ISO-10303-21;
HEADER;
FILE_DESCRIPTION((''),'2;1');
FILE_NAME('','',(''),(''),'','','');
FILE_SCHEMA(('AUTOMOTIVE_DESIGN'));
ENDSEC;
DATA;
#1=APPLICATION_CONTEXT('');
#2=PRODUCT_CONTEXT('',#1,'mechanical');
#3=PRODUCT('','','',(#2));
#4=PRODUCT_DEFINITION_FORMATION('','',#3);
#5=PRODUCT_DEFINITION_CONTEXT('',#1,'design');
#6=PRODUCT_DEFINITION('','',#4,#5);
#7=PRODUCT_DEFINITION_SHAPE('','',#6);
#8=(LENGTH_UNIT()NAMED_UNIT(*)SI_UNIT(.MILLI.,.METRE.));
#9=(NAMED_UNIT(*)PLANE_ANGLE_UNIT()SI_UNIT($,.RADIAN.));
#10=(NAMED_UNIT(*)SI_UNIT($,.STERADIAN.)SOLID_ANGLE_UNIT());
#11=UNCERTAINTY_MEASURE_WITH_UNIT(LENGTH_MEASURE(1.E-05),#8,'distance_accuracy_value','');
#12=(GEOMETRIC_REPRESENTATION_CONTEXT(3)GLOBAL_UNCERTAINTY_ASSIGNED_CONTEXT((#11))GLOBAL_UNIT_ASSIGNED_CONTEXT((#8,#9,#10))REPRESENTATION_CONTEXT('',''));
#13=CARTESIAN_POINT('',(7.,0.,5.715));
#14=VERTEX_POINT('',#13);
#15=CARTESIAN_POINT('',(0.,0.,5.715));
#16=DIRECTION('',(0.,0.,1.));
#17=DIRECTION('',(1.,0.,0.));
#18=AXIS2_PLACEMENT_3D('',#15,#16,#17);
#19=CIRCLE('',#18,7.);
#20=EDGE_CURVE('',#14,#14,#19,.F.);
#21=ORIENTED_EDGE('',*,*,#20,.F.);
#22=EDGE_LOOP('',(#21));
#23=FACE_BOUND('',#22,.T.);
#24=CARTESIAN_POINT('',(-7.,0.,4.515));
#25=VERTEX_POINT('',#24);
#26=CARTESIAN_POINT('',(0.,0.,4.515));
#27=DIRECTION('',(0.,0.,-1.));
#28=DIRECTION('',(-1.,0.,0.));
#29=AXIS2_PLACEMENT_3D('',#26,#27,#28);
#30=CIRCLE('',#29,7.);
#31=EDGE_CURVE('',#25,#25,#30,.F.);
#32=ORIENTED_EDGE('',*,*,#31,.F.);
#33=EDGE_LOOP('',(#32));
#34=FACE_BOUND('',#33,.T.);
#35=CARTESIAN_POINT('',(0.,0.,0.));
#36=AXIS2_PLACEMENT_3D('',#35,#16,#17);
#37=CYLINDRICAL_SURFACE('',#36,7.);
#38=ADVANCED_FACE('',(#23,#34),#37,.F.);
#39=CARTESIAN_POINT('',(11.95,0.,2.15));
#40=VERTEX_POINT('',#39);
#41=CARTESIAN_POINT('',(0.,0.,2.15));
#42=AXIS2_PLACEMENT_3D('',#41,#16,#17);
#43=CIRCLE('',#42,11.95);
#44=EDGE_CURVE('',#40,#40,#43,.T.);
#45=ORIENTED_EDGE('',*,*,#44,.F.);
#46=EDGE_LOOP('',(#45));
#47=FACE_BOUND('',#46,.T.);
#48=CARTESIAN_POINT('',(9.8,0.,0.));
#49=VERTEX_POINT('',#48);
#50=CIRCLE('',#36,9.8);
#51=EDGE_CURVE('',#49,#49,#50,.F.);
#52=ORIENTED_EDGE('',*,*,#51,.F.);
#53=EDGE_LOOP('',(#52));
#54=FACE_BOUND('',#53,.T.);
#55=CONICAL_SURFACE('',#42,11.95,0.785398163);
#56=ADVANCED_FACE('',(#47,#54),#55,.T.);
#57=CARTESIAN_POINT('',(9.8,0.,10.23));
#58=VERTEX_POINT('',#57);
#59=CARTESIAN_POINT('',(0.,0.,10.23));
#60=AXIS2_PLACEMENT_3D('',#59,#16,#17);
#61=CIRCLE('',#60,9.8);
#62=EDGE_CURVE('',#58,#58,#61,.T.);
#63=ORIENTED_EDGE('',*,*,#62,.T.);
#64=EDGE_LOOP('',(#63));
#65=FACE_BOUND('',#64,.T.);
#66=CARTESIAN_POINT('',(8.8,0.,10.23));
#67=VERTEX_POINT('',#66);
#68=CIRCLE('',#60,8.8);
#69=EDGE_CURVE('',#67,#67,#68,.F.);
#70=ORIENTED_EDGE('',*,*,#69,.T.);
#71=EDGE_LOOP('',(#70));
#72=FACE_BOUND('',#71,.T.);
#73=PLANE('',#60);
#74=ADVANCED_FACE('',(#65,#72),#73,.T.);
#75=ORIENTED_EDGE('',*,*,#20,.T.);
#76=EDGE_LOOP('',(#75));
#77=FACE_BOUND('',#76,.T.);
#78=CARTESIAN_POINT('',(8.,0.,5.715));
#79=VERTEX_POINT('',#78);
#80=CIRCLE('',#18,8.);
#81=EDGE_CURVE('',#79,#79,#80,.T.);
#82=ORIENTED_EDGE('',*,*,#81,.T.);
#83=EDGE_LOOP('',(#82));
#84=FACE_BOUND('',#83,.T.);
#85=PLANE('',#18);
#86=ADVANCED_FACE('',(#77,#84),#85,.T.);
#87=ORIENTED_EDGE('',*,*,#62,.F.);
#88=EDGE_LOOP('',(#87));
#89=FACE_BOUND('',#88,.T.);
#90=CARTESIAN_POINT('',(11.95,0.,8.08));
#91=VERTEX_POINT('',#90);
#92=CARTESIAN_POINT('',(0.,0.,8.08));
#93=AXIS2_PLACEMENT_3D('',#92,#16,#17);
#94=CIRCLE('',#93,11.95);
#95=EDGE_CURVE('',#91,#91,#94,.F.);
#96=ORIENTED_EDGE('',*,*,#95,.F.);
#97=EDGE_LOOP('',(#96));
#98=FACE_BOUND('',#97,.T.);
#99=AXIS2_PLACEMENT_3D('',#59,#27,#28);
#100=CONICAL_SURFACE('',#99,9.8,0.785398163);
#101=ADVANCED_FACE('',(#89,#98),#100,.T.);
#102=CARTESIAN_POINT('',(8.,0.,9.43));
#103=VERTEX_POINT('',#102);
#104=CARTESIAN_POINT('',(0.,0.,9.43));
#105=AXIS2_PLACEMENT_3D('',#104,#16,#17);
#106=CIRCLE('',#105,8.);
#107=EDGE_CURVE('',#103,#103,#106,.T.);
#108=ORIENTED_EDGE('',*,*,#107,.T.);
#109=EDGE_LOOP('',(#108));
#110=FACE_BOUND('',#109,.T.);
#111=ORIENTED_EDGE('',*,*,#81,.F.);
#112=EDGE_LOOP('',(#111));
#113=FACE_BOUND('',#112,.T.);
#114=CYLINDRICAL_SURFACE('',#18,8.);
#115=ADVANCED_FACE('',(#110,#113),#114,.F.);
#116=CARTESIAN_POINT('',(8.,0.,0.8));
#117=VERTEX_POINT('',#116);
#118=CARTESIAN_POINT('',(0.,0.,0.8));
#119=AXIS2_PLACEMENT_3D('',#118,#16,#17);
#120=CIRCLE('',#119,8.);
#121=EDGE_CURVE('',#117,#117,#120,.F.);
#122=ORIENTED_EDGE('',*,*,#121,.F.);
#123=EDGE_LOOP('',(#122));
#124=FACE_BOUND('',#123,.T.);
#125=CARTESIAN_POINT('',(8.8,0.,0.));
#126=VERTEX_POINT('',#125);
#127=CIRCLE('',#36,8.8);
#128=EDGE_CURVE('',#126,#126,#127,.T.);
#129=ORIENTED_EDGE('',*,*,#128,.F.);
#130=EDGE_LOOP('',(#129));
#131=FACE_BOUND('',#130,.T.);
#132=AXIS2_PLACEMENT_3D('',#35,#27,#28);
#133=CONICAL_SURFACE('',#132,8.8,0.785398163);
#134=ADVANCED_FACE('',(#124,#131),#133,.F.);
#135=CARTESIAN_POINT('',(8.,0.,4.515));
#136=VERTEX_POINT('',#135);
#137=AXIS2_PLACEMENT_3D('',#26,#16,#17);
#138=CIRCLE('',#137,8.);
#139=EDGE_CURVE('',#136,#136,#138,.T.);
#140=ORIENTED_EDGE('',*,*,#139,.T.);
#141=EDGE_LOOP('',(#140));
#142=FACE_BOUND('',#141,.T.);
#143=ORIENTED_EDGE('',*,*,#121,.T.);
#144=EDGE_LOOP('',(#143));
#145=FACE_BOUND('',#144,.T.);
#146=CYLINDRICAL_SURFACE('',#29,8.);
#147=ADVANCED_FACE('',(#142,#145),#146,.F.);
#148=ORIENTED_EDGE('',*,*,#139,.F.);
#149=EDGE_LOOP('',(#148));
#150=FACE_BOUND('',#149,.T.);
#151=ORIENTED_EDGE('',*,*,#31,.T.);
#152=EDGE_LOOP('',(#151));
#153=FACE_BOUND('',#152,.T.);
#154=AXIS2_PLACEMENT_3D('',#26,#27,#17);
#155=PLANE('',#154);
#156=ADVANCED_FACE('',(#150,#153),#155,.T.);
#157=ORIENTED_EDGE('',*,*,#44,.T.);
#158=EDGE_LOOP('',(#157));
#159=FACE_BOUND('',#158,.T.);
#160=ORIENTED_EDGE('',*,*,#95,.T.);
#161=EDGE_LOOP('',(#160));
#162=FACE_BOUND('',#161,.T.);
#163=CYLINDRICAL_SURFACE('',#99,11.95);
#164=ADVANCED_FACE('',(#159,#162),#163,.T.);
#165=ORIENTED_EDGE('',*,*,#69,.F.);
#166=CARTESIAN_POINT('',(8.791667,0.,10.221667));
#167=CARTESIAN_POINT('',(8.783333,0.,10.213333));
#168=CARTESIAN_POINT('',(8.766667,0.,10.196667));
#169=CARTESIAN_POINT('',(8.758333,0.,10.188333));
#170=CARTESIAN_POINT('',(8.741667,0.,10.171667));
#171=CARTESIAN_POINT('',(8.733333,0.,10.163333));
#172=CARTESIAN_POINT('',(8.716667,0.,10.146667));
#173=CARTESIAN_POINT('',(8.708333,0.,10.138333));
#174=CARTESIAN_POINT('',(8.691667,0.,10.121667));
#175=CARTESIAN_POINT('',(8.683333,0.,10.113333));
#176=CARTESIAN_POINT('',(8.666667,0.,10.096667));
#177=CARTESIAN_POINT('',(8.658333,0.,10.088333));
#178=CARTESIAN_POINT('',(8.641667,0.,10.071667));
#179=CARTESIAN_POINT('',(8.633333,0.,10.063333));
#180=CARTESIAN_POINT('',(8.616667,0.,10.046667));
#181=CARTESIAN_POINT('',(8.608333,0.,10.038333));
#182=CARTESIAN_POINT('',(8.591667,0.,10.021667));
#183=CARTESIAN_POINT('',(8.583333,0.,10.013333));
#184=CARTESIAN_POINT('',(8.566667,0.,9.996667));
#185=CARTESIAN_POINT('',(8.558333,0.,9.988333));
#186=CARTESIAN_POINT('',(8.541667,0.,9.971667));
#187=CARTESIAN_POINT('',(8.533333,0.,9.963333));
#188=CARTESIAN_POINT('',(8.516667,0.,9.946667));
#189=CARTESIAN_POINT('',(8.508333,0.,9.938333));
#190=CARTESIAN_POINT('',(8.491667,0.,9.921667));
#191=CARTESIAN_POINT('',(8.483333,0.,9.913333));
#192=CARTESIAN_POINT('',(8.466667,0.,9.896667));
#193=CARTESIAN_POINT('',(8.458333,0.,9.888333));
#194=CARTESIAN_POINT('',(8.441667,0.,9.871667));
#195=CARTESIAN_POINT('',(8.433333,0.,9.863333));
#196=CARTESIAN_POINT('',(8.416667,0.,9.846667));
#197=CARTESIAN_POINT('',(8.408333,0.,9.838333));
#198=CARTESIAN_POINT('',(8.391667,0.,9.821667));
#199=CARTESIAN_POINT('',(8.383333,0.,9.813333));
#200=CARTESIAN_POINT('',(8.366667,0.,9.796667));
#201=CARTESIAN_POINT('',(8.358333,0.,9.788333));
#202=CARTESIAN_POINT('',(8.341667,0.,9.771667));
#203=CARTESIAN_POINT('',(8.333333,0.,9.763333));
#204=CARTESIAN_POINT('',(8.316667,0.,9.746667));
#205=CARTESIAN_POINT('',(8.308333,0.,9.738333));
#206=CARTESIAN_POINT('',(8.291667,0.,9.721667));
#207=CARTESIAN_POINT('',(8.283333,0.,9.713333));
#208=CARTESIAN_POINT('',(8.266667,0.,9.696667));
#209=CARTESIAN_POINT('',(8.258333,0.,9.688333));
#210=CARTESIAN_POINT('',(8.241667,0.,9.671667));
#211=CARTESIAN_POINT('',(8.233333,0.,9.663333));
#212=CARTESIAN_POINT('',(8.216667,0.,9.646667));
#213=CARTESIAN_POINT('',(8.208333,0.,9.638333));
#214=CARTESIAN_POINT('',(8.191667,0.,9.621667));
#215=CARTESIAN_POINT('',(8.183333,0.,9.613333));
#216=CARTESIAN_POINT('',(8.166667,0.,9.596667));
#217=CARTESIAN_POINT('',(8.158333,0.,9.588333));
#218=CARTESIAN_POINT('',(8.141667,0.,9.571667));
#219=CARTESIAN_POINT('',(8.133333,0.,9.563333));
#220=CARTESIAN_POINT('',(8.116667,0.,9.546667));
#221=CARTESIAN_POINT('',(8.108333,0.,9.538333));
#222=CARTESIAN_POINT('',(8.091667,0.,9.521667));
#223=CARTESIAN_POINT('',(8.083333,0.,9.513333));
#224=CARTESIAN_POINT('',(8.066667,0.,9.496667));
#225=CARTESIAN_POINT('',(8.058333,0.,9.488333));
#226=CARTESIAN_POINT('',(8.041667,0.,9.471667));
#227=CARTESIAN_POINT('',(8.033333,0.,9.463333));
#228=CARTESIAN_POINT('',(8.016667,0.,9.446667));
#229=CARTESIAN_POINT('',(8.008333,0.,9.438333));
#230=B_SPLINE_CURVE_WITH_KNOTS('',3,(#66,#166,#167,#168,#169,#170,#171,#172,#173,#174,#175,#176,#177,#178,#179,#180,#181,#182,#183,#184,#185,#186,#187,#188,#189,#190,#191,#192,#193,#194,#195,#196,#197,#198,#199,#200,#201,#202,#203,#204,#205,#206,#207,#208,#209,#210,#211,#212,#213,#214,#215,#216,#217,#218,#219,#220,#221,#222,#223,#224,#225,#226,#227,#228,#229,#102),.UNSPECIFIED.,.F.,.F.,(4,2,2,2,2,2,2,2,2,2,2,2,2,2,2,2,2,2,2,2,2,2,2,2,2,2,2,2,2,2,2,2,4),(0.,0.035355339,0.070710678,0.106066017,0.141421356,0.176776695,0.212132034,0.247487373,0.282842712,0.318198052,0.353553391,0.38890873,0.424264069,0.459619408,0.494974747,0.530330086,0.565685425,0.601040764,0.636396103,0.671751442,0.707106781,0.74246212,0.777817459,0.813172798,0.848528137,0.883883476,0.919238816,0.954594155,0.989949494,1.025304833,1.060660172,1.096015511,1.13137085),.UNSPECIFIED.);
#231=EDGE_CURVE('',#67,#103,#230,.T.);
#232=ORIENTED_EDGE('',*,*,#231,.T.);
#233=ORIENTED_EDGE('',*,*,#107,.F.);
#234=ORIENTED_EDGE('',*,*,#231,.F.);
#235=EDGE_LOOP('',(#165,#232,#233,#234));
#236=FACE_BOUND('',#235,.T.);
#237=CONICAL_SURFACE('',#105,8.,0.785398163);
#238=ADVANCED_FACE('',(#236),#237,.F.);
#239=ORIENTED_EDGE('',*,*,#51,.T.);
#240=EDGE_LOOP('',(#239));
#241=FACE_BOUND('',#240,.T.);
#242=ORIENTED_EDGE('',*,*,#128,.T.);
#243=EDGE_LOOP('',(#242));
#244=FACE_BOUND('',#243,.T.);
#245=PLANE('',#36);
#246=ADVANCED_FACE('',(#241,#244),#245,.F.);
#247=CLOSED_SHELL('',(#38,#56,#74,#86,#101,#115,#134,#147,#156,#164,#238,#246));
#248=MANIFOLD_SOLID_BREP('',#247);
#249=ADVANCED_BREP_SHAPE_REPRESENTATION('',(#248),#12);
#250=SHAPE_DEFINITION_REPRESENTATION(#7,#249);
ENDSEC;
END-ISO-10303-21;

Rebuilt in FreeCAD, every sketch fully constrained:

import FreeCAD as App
import Part
import Sketcher
from FreeCAD import Vector
Q = App.Units.Quantity


def edges_at(feature, points):
    """Names of the edges that pass closest to the given points."""
    edges = feature.Shape.Edges
    near = lambda p: min(range(len(edges)), key=lambda i: edges[i].distToShape(Part.Vertex(*p))[0])
    return sorted({f"Edge{near(p) + 1}" for p in points})

doc = App.newDocument("Part")
body = doc.addObject("PartDesign::Body", "Body")

sketch1 = body.newObject("Sketcher::SketchObject", "Sketch")
sketch1.AttachmentSupport = (doc.getObject("XY_Plane"), [""])
sketch1.MapMode = "FlatFace"
sketch1.addGeometry(Part.Circle(Vector(0, 0, 0), Vector(0, 0, 1), 12), False)
sketch1.addConstraint([
    Sketcher.Constraint("Coincident", 0, 3, -1, 1),
    Sketcher.Constraint("Diameter", 0, Q("23.9 mm")),
])
pad1 = body.newObject("PartDesign::Pad", "Pad")
pad1.Profile = sketch1
pad1.Length = 10.23

sketch2 = body.newObject("Sketcher::SketchObject", "Sketch001")
sketch2.AttachmentSupport = (doc.getObject("XY_Plane"), [""])
sketch2.MapMode = "FlatFace"
sketch2.AttachmentOffset = App.Placement(Vector(0, 0, 10.23), App.Rotation())
sketch2.addGeometry(Part.Circle(Vector(0, 0, 0), Vector(0, 0, 1), 7), False)
sketch2.addConstraint([
    Sketcher.Constraint("Coincident", 0, 3, -1, 1),
    Sketcher.Constraint("Diameter", 0, Q("14 mm")),
])
pocket1 = body.newObject("PartDesign::Pocket", "Pocket")
pocket1.Profile = sketch2
pocket1.Type = "ThroughAll"
doc.recompute()

chamfer = body.newObject("PartDesign::Chamfer", "Chamfer")
chamfer.Base = (pocket1, edges_at(pocket1, [(-11.95, 0, 0), (-11.95, 0, 10.23)]))
chamfer.Size = 2.15

sketch3 = body.newObject("Sketcher::SketchObject", "Sketch002")
sketch3.AttachmentSupport = (doc.getObject("XY_Plane"), [""])
sketch3.MapMode = "FlatFace"
sketch3.AttachmentOffset = App.Placement(Vector(0, 0, 10.23), App.Rotation())
sketch3.addGeometry(Part.Circle(Vector(0, 0, 0), Vector(0, 0, 1), 8), False)
sketch3.addConstraint([
    Sketcher.Constraint("Coincident", 0, 3, -1, 1),
    Sketcher.Constraint("Diameter", 0, Q("16 mm")),
])
pocket2 = body.newObject("PartDesign::Pocket", "Pocket001")
pocket2.Profile = sketch3
pocket2.Length = 4.515
doc.recompute()

datumplane = body.newObject("PartDesign::Plane", "DatumPlane")
datumplane.AttachmentSupport = (doc.getObject("XY_Plane"), [""])
datumplane.MapMode = "FlatFace"
datumplane.AttachmentOffset = App.Placement(Vector(0, 0, 5.115), App.Rotation())
mirrored = body.newObject("PartDesign::Mirrored", "Mirrored")
mirrored.Originals = [pocket2]
mirrored.MirrorPlane = (datumplane, [""])
body.Tip = mirrored
doc.recompute()

chamfer2 = body.newObject("PartDesign::Chamfer", "Chamfer001")
chamfer2.Base = (mirrored, edges_at(mirrored, [(-8, 0, 10.23), (-8, 0, 0)]))
chamfer2.Size = 0.8

doc.recompute()
